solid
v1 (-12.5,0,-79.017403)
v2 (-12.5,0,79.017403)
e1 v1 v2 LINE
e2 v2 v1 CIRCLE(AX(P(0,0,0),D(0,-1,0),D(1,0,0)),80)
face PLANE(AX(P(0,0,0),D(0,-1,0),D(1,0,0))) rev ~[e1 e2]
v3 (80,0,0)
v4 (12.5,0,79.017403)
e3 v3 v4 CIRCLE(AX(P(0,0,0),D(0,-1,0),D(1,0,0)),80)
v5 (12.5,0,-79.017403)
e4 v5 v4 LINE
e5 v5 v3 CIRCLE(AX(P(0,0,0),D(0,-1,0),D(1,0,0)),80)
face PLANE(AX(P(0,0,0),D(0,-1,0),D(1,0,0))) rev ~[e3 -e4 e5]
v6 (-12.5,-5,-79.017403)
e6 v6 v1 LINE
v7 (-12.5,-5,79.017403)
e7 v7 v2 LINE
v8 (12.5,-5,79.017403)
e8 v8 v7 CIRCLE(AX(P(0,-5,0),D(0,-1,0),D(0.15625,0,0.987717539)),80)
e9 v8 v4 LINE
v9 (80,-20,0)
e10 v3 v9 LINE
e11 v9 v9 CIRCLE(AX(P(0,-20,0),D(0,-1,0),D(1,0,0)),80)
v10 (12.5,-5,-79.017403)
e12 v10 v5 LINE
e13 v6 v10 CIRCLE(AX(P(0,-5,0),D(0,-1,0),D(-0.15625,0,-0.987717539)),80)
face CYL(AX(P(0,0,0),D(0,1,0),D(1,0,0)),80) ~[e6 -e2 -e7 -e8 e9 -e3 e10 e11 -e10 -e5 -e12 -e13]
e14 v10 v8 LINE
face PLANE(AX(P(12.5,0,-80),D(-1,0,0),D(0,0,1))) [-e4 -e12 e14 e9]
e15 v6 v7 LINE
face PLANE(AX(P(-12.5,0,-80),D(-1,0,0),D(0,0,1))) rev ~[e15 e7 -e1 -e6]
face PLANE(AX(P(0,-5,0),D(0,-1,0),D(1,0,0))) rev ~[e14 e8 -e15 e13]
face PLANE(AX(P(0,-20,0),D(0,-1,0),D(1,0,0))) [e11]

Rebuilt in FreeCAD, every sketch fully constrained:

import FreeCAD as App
import Part
import Sketcher
Q = App.Units.Quantity


def add_polygon(sketch, points):
    """Adds a closed chain of lines whose ends are joined by coincident constraints."""
    first, n = sketch.GeometryCount, len(points)
    for a, b in zip(points, points[1:] + points[:1]):
        sketch.addGeometry(Part.LineSegment(App.Vector(*a, 0), App.Vector(*b, 0)), False)
    for i in range(n):
        sketch.addConstraint(Sketcher.Constraint("Coincident", first + i, 2, first + (i + 1) % n, 1))

doc = App.newDocument("Part")
body = doc.addObject("PartDesign::Body", "Body")

sketch1 = body.newObject("Sketcher::SketchObject", "Sketch")
sketch1.AttachmentSupport = (doc.getObject("XZ_Plane"), [""])
sketch1.MapMode = "FlatFace"
sketch1.addGeometry(Part.Circle(App.Vector(0, 0, 0), App.Vector(0, 0, 1), 80), False)
sketch1.addConstraint([
    Sketcher.Constraint("Coincident", 0, 3, -1, 1),
    Sketcher.Constraint("Diameter", 0, Q("160 mm")),
])
pad1 = body.newObject("PartDesign::Pad", "Pad")
pad1.Profile = sketch1
pad1.Length = 20

sketch2 = body.newObject("Sketcher::SketchObject", "Sketch001")
sketch2.AttachmentSupport = (doc.getObject("XZ_Plane"), [""])
sketch2.MapMode = "FlatFace"
add_polygon(sketch2, [(-12, 80), (-12, -80), (12, -80), (12, 80)])
sketch2.addConstraint([
    Sketcher.Constraint("Vertical", 0),
    Sketcher.Constraint("Horizontal", 1),
    Sketcher.Constraint("Vertical", 2),
    Sketcher.Constraint("Horizontal", 3),
    Sketcher.Constraint("Symmetric", 0, 2, 2, 2, -1, 1),
    Sketcher.Constraint("DistanceX", 1, 1, 1, 2, Q("25 mm")),
    Sketcher.Constraint("DistanceY", 0, 2, 0, 1, Q("160 mm")),
])
pocket1 = body.newObject("PartDesign::Pocket", "Pocket")
pocket1.Profile = sketch2
pocket1.Length = 5
pocket1.Reversed = True

doc.recompute()
